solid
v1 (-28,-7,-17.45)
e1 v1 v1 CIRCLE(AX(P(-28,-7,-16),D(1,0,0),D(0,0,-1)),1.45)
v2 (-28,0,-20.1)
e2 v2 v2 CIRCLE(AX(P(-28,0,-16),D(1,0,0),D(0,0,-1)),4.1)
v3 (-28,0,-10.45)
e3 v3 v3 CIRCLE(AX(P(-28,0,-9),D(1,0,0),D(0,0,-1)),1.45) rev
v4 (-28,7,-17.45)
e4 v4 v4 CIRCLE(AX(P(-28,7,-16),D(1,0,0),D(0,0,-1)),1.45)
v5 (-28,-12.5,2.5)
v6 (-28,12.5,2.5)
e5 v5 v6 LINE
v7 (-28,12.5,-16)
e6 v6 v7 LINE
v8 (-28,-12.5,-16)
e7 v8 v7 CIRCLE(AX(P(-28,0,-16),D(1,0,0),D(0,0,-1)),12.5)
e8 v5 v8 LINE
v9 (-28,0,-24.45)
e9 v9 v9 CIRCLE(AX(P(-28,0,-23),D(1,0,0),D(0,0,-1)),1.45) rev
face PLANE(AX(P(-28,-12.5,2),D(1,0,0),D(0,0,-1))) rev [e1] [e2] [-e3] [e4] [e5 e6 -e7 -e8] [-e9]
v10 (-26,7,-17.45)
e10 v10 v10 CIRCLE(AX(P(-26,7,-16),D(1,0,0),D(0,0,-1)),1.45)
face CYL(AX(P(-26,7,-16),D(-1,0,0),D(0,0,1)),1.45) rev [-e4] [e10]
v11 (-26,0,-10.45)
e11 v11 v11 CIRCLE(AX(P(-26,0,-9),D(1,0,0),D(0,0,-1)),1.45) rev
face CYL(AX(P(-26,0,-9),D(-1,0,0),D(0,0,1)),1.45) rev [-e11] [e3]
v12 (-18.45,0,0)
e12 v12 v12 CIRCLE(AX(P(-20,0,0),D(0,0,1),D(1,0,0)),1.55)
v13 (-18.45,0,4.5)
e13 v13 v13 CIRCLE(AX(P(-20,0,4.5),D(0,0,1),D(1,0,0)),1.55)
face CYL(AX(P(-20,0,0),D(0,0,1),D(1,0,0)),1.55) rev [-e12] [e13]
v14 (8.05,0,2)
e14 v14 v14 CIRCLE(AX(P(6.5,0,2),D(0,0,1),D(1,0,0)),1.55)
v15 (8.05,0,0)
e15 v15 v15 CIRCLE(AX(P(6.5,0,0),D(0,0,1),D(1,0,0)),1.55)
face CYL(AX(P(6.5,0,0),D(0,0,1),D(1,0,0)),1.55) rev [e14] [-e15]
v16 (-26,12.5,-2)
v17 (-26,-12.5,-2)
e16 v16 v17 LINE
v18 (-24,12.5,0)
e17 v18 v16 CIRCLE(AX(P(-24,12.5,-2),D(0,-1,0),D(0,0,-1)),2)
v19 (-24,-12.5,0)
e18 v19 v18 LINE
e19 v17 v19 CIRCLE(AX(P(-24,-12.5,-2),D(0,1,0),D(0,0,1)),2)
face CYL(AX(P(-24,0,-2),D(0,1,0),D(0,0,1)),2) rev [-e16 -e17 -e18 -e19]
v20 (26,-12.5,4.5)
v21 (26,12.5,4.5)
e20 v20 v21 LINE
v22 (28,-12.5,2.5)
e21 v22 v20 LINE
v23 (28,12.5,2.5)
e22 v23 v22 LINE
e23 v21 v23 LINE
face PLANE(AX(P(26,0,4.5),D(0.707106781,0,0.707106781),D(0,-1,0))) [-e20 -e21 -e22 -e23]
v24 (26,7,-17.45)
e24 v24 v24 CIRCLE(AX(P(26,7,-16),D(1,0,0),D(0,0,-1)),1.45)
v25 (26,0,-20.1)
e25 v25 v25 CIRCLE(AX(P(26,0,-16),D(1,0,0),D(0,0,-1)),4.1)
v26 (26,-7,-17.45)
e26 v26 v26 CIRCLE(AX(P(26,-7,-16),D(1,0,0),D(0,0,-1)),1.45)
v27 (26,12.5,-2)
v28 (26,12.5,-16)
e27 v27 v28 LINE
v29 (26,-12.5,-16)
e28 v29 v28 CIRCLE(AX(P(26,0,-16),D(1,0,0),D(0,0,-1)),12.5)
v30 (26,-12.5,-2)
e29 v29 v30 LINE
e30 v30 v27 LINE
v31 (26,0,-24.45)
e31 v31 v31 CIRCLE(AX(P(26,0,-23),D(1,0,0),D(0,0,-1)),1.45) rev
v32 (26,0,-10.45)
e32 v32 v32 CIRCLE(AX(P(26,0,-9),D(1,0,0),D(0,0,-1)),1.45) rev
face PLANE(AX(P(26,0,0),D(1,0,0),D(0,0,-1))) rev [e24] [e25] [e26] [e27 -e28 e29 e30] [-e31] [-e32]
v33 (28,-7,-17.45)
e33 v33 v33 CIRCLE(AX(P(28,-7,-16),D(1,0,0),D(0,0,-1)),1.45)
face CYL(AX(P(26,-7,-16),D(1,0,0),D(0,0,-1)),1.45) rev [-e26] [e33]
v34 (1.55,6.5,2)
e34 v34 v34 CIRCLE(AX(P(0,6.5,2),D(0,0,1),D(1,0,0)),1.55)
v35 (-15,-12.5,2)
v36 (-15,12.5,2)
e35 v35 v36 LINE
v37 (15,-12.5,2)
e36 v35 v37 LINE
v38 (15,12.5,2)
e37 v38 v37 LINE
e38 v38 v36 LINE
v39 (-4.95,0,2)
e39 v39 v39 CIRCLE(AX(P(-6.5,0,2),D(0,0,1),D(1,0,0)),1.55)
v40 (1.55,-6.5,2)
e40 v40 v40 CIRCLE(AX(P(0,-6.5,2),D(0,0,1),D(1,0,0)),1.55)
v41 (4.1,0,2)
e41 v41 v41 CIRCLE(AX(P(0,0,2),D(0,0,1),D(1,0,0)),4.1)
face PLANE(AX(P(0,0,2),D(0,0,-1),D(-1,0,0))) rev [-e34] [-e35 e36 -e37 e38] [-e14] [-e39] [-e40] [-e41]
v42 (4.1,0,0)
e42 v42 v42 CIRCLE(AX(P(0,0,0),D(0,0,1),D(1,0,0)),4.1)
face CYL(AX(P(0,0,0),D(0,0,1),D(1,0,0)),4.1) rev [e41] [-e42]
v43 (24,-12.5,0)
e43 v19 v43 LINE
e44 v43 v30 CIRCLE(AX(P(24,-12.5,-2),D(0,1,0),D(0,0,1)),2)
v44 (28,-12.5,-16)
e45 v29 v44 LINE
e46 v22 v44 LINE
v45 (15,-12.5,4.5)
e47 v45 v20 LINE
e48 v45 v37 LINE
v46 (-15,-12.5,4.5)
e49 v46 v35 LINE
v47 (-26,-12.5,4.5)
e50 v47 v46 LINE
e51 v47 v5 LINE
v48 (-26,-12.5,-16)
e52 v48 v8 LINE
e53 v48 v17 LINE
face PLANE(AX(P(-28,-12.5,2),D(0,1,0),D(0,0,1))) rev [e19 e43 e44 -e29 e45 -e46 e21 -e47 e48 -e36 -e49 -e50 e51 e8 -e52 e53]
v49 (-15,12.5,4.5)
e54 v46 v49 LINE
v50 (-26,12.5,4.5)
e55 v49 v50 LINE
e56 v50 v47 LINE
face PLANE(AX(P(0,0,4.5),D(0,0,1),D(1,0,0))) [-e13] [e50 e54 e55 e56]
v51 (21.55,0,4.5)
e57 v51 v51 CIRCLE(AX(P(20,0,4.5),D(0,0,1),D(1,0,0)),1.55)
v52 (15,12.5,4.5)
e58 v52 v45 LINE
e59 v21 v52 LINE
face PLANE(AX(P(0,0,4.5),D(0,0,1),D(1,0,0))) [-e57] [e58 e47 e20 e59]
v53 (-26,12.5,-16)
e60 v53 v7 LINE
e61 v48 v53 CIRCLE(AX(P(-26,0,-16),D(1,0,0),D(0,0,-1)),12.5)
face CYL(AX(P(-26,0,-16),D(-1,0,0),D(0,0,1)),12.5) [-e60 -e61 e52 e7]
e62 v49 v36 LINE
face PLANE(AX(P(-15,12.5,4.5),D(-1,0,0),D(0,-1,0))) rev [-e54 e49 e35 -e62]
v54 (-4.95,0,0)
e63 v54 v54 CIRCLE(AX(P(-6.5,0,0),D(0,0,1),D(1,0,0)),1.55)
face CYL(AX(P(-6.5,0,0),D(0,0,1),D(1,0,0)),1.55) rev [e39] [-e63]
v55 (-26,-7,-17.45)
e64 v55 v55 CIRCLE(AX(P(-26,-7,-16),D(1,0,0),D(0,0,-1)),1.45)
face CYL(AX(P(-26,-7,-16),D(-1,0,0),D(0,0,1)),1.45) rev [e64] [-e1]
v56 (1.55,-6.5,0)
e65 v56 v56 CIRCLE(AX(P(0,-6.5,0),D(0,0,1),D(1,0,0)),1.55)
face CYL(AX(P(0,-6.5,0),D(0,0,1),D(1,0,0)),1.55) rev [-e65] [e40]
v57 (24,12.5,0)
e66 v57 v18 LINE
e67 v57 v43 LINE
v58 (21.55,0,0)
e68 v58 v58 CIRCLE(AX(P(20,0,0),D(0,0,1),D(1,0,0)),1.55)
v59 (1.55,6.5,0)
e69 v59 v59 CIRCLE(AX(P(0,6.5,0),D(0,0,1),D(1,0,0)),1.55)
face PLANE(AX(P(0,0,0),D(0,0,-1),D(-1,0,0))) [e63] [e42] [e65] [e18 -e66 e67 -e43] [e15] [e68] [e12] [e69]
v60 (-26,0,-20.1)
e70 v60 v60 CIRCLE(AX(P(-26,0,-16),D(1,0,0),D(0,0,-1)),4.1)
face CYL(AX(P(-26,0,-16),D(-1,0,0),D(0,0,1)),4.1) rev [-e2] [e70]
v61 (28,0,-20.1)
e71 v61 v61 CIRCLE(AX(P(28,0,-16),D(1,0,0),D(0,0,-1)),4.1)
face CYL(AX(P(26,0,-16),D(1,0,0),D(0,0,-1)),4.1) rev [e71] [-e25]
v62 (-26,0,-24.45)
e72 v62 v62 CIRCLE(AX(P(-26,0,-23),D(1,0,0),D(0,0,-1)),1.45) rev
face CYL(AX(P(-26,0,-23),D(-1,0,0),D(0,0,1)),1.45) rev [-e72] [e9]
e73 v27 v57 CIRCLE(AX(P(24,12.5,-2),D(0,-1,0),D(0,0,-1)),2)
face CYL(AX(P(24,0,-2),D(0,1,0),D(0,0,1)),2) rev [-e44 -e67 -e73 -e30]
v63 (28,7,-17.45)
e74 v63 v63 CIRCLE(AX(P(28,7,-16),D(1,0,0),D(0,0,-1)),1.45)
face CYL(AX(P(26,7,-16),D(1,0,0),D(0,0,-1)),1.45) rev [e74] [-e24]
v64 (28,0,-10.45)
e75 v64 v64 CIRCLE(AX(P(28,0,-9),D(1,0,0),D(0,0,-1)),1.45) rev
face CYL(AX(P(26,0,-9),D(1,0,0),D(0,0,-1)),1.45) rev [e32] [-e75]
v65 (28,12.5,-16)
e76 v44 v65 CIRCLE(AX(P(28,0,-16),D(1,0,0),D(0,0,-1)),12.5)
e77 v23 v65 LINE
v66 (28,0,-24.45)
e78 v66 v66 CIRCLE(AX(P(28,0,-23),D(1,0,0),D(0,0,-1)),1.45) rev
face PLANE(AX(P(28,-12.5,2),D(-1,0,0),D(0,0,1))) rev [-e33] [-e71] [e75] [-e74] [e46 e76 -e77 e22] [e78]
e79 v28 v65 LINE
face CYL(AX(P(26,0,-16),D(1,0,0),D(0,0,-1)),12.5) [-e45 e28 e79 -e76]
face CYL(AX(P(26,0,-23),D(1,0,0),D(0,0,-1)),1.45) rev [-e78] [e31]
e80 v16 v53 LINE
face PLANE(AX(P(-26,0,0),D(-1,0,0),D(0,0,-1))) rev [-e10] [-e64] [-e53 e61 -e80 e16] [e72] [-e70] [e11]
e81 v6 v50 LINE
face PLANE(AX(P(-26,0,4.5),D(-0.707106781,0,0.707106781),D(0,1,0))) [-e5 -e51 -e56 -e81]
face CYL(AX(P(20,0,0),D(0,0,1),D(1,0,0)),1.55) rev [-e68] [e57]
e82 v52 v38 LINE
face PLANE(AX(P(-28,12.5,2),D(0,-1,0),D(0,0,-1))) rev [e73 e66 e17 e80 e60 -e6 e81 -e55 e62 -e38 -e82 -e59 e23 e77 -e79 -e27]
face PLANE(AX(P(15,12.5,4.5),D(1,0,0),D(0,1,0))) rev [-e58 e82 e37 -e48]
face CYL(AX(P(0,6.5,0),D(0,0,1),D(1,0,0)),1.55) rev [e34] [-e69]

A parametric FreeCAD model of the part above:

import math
import FreeCAD as App
import Part
import Sketcher

V = App.Vector
Q = App.Units.Quantity


def edges_at(feature, points):
    """Names of the edges that pass closest to the given points."""
    edges = feature.Shape.Edges
    near = lambda p: min(range(len(edges)), key=lambda i: edges[i].distToShape(Part.Vertex(*p))[0])
    return sorted({f"Edge{near(p) + 1}" for p in points})


def add_polygon(sketch, points):
    """Adds a closed chain of lines whose ends are joined by coincident constraints."""
    first, n = sketch.GeometryCount, len(points)
    for a, b in zip(points, points[1:] + points[:1]):
        sketch.addGeometry(Part.LineSegment(App.Vector(*a, 0), App.Vector(*b, 0)), False)
    for i in range(n):
        sketch.addConstraint(Sketcher.Constraint("Coincident", first + i, 2, first + (i + 1) % n, 1))

doc = App.newDocument("Part")
body = doc.addObject("PartDesign::Body", "Body")

# Sketch on XY plane
sketch1 = body.newObject("Sketcher::SketchObject", "Sketch")
sketch1.AttachmentSupport = (doc.getObject("XY_Plane"), [""])
sketch1.MapMode = "FlatFace"
add_polygon(sketch1, [(-28, 12.5), (-28, -12.5), (28, -12.5), (28, 12.5)])  # lines 0-3
sketch1.addConstraint(Sketcher.Constraint("Vertical", 0))
sketch1.addConstraint(Sketcher.Constraint("Horizontal", 1))
sketch1.addConstraint(Sketcher.Constraint("Vertical", 2))
sketch1.addConstraint(Sketcher.Constraint("Horizontal", 3))
sketch1.addConstraint(Sketcher.Constraint("Symmetric", 0, 2, 2, 2, -1, 1))
sketch1.addConstraint(Sketcher.Constraint("DistanceX", 1, 1, 1, 2, Q("56 mm")))
sketch1.addConstraint(Sketcher.Constraint("DistanceY", 0, 2, 0, 1, Q("25 mm")))
pad1 = body.newObject("PartDesign::Pad", "Pad")
pad1.Profile = sketch1
pad1.Length = 2

# Sketch on YZ plane
sketch2 = body.newObject("Sketcher::SketchObject", "Sketch001")
sketch2.AttachmentSupport = (doc.getObject("YZ_Plane"), [""])
sketch2.MapMode = "FlatFace"
sketch2.AttachmentOffset = App.Placement(V(0, 0, 28), App.Rotation())
sketch2.addGeometry(Part.LineSegment(V(12.5, -16, 0), V(12.5, 0, 0)), False)
sketch2.addGeometry(Part.LineSegment(V(12.5, 0, 0), V(-12.5, 0, 0)), False)
sketch2.addGeometry(Part.LineSegment(V(-12.5, 0, 0), V(-12.5, -16, 0)), False)
sketch2.addGeometry(Part.ArcOfCircle(Part.Circle(V(0, -16, 0), V(0, 0, 1), 12.5), math.radians(180), math.radians(235.944202)), False)
sketch2.addGeometry(Part.ArcOfCircle(Part.Circle(V(0, -16, 0), V(0, 0, 1), 12.5), math.radians(-124.055798), math.radians(-106.260205)), False)
sketch2.addGeometry(Part.ArcOfCircle(Part.Circle(V(0, -16, 0), V(0, 0, 1), 12.5), math.radians(-106.260205), math.radians(-90)), False)
sketch2.addGeometry(Part.ArcOfCircle(Part.Circle(V(0, -16, 0), V(0, 0, 1), 12.5), math.radians(-90), math.radians(0)), False)
sketch2.addGeometry(Part.ArcOfCircle(Part.Circle(V(0, -16, 0), V(0, 0, 1), 4.1), math.radians(0), math.radians(270)), False)
sketch2.addGeometry(Part.ArcOfCircle(Part.Circle(V(0, -16, 0), V(0, 0, 1), 4.1), math.radians(-90), math.radians(0)), False)
sketch2.addGeometry(Part.Circle(V(-7, -16, 0), V(0, 0, 1), 1.45), False)
sketch2.addGeometry(Part.Circle(V(0, -23, 0), V(0, 0, 1), 1.45), False)
sketch2.addGeometry(Part.Circle(V(0, -9, 0), V(0, 0, 1), 1.45), False)
sketch2.addGeometry(Part.ArcOfCircle(Part.Circle(V(7, -16, 0), V(0, 0, 1), 1.45), math.radians(-90), math.radians(0)), False)
sketch2.addGeometry(Part.ArcOfCircle(Part.Circle(V(7, -16, 0), V(0, 0, 1), 1.45), math.radians(180), math.radians(270)), False)
sketch2.addGeometry(Part.ArcOfCircle(Part.Circle(V(7, -16, 0), V(0, 0, 1), 1.45), math.radians(90), math.radians(180)), False)
sketch2.addGeometry(Part.ArcOfCircle(Part.Circle(V(7, -16, 0), V(0, 0, 1), 1.45), math.radians(0), math.radians(90)), False)
sketch2.addConstraint(Sketcher.Constraint("Coincident", 0, 2, 1, 1))
sketch2.addConstraint(Sketcher.Constraint("Coincident", 1, 2, 2, 1))
sketch2.addConstraint(Sketcher.Constraint("Tangent", 2, 2, 3, 1))
sketch2.addConstraint(Sketcher.Constraint("Tangent", 3, 2, 4, 1))
sketch2.addConstraint(Sketcher.Constraint("Tangent", 4, 2, 5, 1))
sketch2.addConstraint(Sketcher.Constraint("Tangent", 5, 2, 6, 1))
sketch2.addConstraint(Sketcher.Constraint("Tangent", 6, 2, 0, 1))
sketch2.addConstraint(Sketcher.Constraint("Tangent", 7, 1, 8, 2))
sketch2.addConstraint(Sketcher.Constraint("Coincident", 8, 1, 7, 2))
sketch2.addConstraint(Sketcher.Constraint("Tangent", 12, 1, 13, 2))
sketch2.addConstraint(Sketcher.Constraint("Tangent", 13, 1, 14, 2))
sketch2.addConstraint(Sketcher.Constraint("Tangent", 14, 1, 15, 2))
sketch2.addConstraint(Sketcher.Constraint("Tangent", 15, 1, 12, 2))
sketch2.addConstraint(Sketcher.Constraint("Vertical", 0))
sketch2.addConstraint(Sketcher.Constraint("Horizontal", 1))
sketch2.addConstraint(Sketcher.Constraint("Vertical", 2))
sketch2.addConstraint(Sketcher.Constraint("Coincident", 5, 3, 3, 3))
sketch2.addConstraint(Sketcher.Constraint("Coincident", 7, 3, 3, 3))
sketch2.addConstraint(Sketcher.Constraint("Equal", 5, 6))
sketch2.addConstraint(Sketcher.Constraint("Equal", 9, 10))
sketch2.addConstraint(Sketcher.Constraint("Equal", 10, 11))
sketch2.addConstraint(Sketcher.Constraint("Equal", 11, 12))
sketch2.addConstraint(Sketcher.Constraint("Equal", 12, 13))
sketch2.addConstraint(Sketcher.Constraint("Symmetric", 0, 2, 1, 2, -1, 1))
sketch2.addConstraint(Sketcher.Constraint("Symmetric", 9, 3, 12, 3, -2))
sketch2.addConstraint(Sketcher.Constraint("PointOnObject", 10, 3, -2))
sketch2.addConstraint(Sketcher.Constraint("PointOnObject", 11, 3, -2))
sketch2.addConstraint(Sketcher.Constraint("PointOnObject", 5, 2, -2))
sketch2.addConstraint(Sketcher.Constraint("PointOnObject", 8, 1, -2))
sketch2.addConstraint(Sketcher.Constraint("Horizontal", 8, 3, 9, 3))
sketch2.addConstraint(Sketcher.Constraint("Horizontal", 6, 2, 7, 1))
sketch2.addConstraint(Sketcher.Constraint("Horizontal", 7, 1, 13, 1))
sketch2.addConstraint(Sketcher.Constraint("Horizontal", 13, 1, 15, 1))
sketch2.addConstraint(Sketcher.Constraint("Vertical", 9, 3, 3, 2))
sketch2.addConstraint(Sketcher.Constraint("Vertical", 15, 3, 12, 1))
sketch2.addConstraint(Sketcher.Constraint("Vertical", 12, 1, 14, 1))
sketch2.addConstraint(Sketcher.Constraint("Diameter", 9, Q("2.9 mm")))
sketch2.addConstraint(Sketcher.Constraint("Radius", 3, Q("12.5 mm")))
sketch2.addConstraint(Sketcher.Constraint("Radius", 7, Q("4.1 mm")))
sketch2.addConstraint(Sketcher.Constraint("DistanceY", 0, 1, 0, 2, Q("16 mm")))
sketch2.addConstraint(Sketcher.Constraint("DistanceX", 9, 3, -1, 1, Q("7 mm")))
sketch2.addConstraint(Sketcher.Constraint("DistanceY", 10, 3, -1, 1, Q("23 mm")))
sketch2.addConstraint(Sketcher.Constraint("DistanceY", 11, 3, -1, 1, Q("9 mm")))
sketch2.addConstraint(Sketcher.Constraint("DistanceY", 4, 2, -1, 1, Q("28 mm")))
pad2 = body.newObject("PartDesign::Pad", "Pad001")
pad2.Profile = sketch2
pad2.Length = 2
pad2.Reversed = True
doc.recompute()

mirrored = body.newObject("PartDesign::Mirrored", "Mirrored")
mirrored.Originals = [pad2]
mirrored.MirrorPlane = (doc.getObject("YZ_Plane"), [""])
body.Tip = mirrored

# Sketch on XY plane
sketch3 = body.newObject("Sketcher::SketchObject", "Sketch002")
sketch3.AttachmentSupport = (doc.getObject("XY_Plane"), [""])
sketch3.MapMode = "FlatFace"
sketch3.AttachmentOffset = App.Placement(V(0, 0, 2), App.Rotation())
sketch3.addGeometry(Part.Circle(V(-20, 0, 0), V(0, 0, 1), 1.55), False)
sketch3.addGeometry(Part.Circle(V(-6.5, 0, 0), V(0, 0, 1), 1.55), False)
sketch3.addGeometry(Part.Circle(V(6.5, 0, 0), V(0, 0, 1), 1.55), False)
sketch3.addGeometry(Part.Circle(V(0, -6.5, 0), V(0, 0, 1), 1.55), False)
sketch3.addGeometry(Part.Circle(V(0, 0, 0), V(0, 0, 1), 4.1), False)
sketch3.addGeometry(Part.Circle(V(0, 6.5, 0), V(0, 0, 1), 1.55), False)
sketch3.addGeometry(Part.Circle(V(20, 0, 0), V(0, 0, 1), 1.55), False)
sketch3.addConstraint(Sketcher.Constraint("Coincident", 4, 3, -1, 1))
sketch3.addConstraint(Sketcher.Constraint("Equal", 0, 1))
sketch3.addConstraint(Sketcher.Constraint("Equal", 1, 2))
sketch3.addConstraint(Sketcher.Constraint("Equal", 2, 3))
sketch3.addConstraint(Sketcher.Constraint("Equal", 3, 5))
sketch3.addConstraint(Sketcher.Constraint("Equal", 5, 6))
sketch3.addConstraint(Sketcher.Constraint("Symmetric", 1, 3, 2, 3, -1, 1))
sketch3.addConstraint(Sketcher.Constraint("Symmetric", 3, 3, 5, 3, -1, 1))
sketch3.addConstraint(Sketcher.Constraint("Symmetric", 0, 3, 6, 3, -1, 1))
sketch3.addConstraint(Sketcher.Constraint("PointOnObject", 0, 3, -1))
sketch3.addConstraint(Sketcher.Constraint("PointOnObject", 1, 3, -1))
sketch3.addConstraint(Sketcher.Constraint("PointOnObject", 3, 3, -2))
sketch3.addConstraint(Sketcher.Constraint("Diameter", 0, Q("3.1 mm")))
sketch3.addConstraint(Sketcher.Constraint("Diameter", 4, Q("8.2 mm")))
sketch3.addConstraint(Sketcher.Constraint("DistanceX", 0, 3, -1, 1, Q("20 mm")))
sketch3.addConstraint(Sketcher.Constraint("DistanceX", 1, 3, 2, 3, Q("13 mm")))
sketch3.addConstraint(Sketcher.Constraint("DistanceY", 3, 3, 5, 3, Q("13 mm")))
pocket1 = body.newObject("PartDesign::Pocket", "Pocket")
pocket1.Profile = sketch3
pocket1.Length = 2
doc.recompute()

fillet = body.newObject("PartDesign::Fillet", "Fillet")
fillet.Base = (pocket1, edges_at(pocket1, [(26, 0, 0), (-26, 0, 0)]))
fillet.Radius = 2

# Sketch on XY plane
sketch4 = body.newObject("Sketcher::SketchObject", "Sketch003")
sketch4.AttachmentSupport = (doc.getObject("XY_Plane"), [""])
sketch4.MapMode = "FlatFace"
sketch4.AttachmentOffset = App.Placement(V(0, 0, 4.5), App.Rotation())
add_polygon(sketch4, [(-28, 12.5), (-28, -12.5), (-15, -12.5), (-15, 12.5)])  # lines 0-3
sketch4.addGeometry(Part.Circle(V(-20, 0, 0), V(0, 0, 1), 1.55), False)  # 4
add_polygon(sketch4, [(15, 12.5), (15, -12.5), (28, -12.5), (28, 12.5)])  # lines 5-8
sketch4.addGeometry(Part.Circle(V(20, 0, 0), V(0, 0, 1), 1.55), False)  # 9
sketch4.addConstraint(Sketcher.Constraint("Vertical", 0))
sketch4.addConstraint(Sketcher.Constraint("Horizontal", 1))
sketch4.addConstraint(Sketcher.Constraint("Vertical", 2))
sketch4.addConstraint(Sketcher.Constraint("Horizontal", 3))
sketch4.addConstraint(Sketcher.Constraint("Vertical", 5))
sketch4.addConstraint(Sketcher.Constraint("Horizontal", 6))
sketch4.addConstraint(Sketcher.Constraint("Vertical", 7))
sketch4.addConstraint(Sketcher.Constraint("Horizontal", 8))
sketch4.addConstraint(Sketcher.Constraint("Equal", 4, 9))
sketch4.addConstraint(Sketcher.Constraint("Symmetric", 4, 3, 9, 3, -1, 1))
sketch4.addConstraint(Sketcher.Constraint("Symmetric", 2, 2, 5, 2, -1, 1))
sketch4.addConstraint(Sketcher.Constraint("Symmetric", 0, 2, 7, 2, -1, 1))
sketch4.addConstraint(Sketcher.Constraint("PointOnObject", 4, 3, -1))
sketch4.addConstraint(Sketcher.Constraint("Horizontal", 1, 2, 5, 2))
sketch4.addConstraint(Sketcher.Constraint("Diameter", 4, Q("3.1 mm")))
sketch4.addConstraint(Sketcher.Constraint("DistanceX", 1, 1, 1, 2, Q("13 mm")))
sketch4.addConstraint(Sketcher.Constraint("DistanceY", 0, 2, 0, 1, Q("25 mm")))
sketch4.addConstraint(Sketcher.Constraint("DistanceX", 4, 3, -1, 1, Q("20 mm")))
sketch4.addConstraint(Sketcher.Constraint("DistanceX", 0, 2, -1, 1, Q("28 mm")))
pad3 = body.newObject("PartDesign::Pad", "Pad002")
pad3.Profile = sketch4
pad3.Length = 2.5
pad3.Reversed = True
doc.recompute()

chamfer = body.newObject("PartDesign::Chamfer", "Chamfer")
chamfer.Base = (pad3, edges_at(pad3, [(-28, 0, 4.5), (28, 0, 4.5)]))
chamfer.Size = 2

doc.recompute()
